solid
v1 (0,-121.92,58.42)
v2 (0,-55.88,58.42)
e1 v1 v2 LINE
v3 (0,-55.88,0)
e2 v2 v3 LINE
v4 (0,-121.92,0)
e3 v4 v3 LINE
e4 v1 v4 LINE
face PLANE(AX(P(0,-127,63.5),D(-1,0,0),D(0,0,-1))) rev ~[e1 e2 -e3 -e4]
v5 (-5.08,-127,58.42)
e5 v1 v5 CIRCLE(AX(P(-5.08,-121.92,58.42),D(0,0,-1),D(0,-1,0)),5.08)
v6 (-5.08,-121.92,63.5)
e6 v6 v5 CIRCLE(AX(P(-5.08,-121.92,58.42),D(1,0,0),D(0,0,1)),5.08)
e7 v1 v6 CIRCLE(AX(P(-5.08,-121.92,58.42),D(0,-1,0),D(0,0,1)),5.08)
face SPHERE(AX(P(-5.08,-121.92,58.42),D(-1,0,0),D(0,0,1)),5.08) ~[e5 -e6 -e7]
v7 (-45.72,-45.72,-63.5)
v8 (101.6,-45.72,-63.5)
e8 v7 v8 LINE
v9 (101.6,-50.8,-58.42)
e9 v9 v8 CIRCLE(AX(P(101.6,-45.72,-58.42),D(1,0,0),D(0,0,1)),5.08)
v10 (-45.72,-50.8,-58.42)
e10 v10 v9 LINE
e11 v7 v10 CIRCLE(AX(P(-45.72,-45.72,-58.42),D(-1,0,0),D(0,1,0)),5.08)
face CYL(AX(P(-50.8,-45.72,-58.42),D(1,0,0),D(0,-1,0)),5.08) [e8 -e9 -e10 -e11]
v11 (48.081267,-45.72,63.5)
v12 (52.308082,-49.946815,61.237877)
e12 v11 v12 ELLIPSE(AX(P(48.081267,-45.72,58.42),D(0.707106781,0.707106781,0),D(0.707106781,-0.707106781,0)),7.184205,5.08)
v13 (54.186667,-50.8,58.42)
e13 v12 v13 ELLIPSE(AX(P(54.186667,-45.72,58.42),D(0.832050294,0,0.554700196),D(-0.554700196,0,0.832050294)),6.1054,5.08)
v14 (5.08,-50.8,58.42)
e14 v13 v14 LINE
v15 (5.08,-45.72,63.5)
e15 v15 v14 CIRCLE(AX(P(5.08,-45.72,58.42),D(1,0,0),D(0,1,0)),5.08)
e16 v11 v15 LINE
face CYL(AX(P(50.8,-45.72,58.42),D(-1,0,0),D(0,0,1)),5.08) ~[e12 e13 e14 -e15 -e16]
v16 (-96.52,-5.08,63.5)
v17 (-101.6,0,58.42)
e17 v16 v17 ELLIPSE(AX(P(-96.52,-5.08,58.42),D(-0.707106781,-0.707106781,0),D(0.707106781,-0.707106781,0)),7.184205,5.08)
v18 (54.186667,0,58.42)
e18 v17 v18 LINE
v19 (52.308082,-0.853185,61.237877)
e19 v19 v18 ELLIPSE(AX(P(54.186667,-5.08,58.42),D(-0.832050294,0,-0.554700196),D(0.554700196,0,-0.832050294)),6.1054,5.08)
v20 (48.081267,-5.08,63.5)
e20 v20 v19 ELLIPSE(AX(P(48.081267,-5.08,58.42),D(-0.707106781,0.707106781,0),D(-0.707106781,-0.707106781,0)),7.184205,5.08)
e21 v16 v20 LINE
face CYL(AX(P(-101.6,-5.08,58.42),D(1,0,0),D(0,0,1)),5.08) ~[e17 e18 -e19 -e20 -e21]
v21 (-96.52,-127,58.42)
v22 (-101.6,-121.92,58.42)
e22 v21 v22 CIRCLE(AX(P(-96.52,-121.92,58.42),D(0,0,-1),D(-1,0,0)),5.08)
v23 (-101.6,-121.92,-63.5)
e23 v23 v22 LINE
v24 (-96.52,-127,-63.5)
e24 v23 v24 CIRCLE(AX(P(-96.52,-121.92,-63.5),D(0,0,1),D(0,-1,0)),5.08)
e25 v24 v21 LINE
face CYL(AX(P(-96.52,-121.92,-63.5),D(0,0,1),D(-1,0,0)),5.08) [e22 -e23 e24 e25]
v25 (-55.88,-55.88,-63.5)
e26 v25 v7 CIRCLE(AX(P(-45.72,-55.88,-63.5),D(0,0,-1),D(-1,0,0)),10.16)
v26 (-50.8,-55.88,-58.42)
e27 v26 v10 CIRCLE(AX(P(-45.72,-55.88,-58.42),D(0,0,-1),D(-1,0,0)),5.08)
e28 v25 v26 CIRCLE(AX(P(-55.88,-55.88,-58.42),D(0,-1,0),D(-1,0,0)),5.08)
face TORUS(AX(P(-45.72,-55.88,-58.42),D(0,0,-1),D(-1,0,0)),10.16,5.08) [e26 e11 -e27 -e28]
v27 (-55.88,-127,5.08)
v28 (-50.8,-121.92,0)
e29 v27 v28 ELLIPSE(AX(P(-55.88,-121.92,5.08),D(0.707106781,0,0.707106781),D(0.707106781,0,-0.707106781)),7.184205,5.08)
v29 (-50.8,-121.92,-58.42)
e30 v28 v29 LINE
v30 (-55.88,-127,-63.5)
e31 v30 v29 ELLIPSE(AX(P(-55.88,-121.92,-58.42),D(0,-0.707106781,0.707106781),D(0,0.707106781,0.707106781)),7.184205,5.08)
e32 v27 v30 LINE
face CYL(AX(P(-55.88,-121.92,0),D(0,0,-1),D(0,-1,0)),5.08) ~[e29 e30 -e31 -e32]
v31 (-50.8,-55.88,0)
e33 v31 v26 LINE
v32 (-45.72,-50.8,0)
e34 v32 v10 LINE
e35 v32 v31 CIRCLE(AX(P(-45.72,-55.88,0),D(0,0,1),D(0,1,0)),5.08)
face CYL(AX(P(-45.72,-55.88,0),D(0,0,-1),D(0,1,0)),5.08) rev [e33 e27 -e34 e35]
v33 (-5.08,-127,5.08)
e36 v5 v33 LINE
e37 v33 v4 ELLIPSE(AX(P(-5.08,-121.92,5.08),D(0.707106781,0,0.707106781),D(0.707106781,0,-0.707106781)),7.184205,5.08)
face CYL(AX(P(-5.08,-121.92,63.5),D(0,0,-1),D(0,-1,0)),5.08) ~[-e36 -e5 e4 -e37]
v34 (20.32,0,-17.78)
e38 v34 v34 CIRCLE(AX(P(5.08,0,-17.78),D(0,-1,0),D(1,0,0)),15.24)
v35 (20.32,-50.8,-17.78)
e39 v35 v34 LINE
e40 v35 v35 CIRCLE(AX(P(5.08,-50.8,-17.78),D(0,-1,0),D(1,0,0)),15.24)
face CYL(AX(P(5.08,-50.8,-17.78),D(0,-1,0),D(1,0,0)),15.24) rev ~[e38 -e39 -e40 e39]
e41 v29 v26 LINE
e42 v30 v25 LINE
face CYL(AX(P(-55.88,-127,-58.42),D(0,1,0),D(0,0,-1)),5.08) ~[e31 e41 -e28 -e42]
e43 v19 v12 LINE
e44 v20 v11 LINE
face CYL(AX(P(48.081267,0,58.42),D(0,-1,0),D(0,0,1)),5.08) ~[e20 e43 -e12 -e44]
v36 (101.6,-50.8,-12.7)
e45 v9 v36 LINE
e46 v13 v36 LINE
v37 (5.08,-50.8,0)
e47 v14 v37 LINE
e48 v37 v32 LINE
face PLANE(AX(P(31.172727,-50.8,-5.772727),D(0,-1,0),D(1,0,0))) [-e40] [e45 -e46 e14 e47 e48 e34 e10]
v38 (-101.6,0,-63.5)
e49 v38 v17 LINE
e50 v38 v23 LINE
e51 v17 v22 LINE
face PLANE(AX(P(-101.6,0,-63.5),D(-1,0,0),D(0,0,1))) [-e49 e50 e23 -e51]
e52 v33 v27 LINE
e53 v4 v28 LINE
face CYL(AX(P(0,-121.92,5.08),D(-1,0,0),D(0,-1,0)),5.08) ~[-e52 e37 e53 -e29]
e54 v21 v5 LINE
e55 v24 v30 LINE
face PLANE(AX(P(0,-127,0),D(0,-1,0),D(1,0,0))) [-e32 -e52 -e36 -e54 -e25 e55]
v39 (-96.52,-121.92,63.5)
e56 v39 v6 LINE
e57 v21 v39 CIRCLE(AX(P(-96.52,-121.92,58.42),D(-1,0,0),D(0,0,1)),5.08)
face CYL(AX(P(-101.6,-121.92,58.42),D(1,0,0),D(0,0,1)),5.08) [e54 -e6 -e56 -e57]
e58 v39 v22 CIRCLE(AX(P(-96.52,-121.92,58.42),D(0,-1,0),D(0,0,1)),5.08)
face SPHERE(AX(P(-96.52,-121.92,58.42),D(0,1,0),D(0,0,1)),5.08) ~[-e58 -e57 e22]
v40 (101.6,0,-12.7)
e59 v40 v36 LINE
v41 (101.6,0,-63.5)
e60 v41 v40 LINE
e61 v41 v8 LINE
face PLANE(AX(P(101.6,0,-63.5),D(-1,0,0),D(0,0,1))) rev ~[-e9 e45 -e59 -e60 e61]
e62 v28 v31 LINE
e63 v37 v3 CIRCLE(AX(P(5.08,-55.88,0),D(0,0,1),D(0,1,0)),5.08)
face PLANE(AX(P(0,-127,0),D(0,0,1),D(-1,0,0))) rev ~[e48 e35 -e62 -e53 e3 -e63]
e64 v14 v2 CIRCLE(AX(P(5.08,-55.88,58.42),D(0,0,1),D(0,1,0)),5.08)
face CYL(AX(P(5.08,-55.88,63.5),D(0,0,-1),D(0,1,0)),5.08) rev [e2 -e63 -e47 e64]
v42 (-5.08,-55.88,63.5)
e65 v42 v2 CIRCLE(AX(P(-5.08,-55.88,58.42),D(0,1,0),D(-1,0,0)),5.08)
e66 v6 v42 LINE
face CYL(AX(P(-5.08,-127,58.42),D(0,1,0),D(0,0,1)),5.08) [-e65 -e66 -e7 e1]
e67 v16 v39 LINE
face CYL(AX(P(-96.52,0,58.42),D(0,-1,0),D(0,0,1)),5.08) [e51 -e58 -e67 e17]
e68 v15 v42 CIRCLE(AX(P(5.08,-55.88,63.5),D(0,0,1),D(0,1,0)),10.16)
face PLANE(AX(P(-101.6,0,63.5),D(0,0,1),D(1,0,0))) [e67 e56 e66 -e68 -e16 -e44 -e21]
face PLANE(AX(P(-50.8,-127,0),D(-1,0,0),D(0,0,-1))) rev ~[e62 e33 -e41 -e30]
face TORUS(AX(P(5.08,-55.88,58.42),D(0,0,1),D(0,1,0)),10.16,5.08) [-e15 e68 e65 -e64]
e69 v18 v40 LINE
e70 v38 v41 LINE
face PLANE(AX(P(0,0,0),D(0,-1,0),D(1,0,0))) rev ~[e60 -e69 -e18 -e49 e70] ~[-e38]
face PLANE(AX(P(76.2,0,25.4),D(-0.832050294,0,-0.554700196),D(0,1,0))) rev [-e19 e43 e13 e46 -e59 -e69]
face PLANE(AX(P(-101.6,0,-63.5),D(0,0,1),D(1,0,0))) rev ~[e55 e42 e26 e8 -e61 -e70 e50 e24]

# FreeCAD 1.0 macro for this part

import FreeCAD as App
import Part
import Sketcher
Q = App.Units.Quantity


def edges_at(feature, points):
    """Names of the edges that pass closest to the given points."""
    edges = feature.Shape.Edges
    near = lambda p: min(range(len(edges)), key=lambda i: edges[i].distToShape(Part.Vertex(*p))[0])
    return sorted({f"Edge{near(p) + 1}" for p in points})

doc = App.newDocument("Part")
body = doc.addObject("PartDesign::Body", "Body")

# Sketch on XZ plane
sketch1 = doc.addObject("Sketcher::SketchObject", "Sketch")
body.addObject(sketch1)
sketch1.AttachmentSupport = (doc.XZ_Plane, [""])
sketch1.MapMode = "FlatFace"
sketch1.addGeometry([
    Part.LineSegment(App.Vector(-102, 64, 0), App.Vector(-102, -64, 0)),
    Part.LineSegment(App.Vector(-102, -64, 0), App.Vector(102, -64, 0)),
    Part.LineSegment(App.Vector(102, -64, 0), App.Vector(102, 64, 0)),
    Part.LineSegment(App.Vector(102, 64, 0), App.Vector(-102, 64, 0)),
], False)
sketch1.addConstraint([
    Sketcher.Constraint("Coincident", 0, 2, 1, 1),
    Sketcher.Constraint("Coincident", 1, 2, 2, 1),
    Sketcher.Constraint("Coincident", 2, 2, 3, 1),
    Sketcher.Constraint("Coincident", 3, 2, 0, 1),
    Sketcher.Constraint("Vertical", 0),
    Sketcher.Constraint("Horizontal", 1),
    Sketcher.Constraint("Vertical", 2),
    Sketcher.Constraint("Horizontal", 3),
    Sketcher.Constraint("Symmetric", 0, 2, 2, 2, -1, 1),
    Sketcher.Constraint("DistanceX", 1, 1, 1, 2, Q("8 in")),
    Sketcher.Constraint("DistanceY", 0, 2, 0, 1, Q("5 in")),
])
pad1 = doc.addObject("PartDesign::Pad", "Pad")
body.addObject(pad1)
pad1.Profile = sketch1
pad1.Length = Q("5 in")

# Sketch on XZ plane
sketch2 = doc.addObject("Sketcher::SketchObject", "Sketch001")
body.addObject(sketch2)
sketch2.AttachmentSupport = (doc.XZ_Plane, [""])
sketch2.MapMode = "FlatFace"
sketch2.AttachmentOffset = App.Placement(App.Vector(0, 0, 5 * 25.4), App.Rotation())
sketch2.addGeometry([
    Part.LineSegment(App.Vector(102, 64, 0), App.Vector(0, 64, 0)),  # 0
    Part.LineSegment(App.Vector(0, 64, 0), App.Vector(0, 0, 0)),  # 1
    Part.LineSegment(App.Vector(0, 0, 0), App.Vector(-51, 0, 0)),  # 2
    Part.LineSegment(App.Vector(-51, 0, 0), App.Vector(-51, -64, 0)),  # 3
    Part.LineSegment(App.Vector(-51, -64, 0), App.Vector(102, -64, 0)),  # 4
    Part.LineSegment(App.Vector(102, -64, 0), App.Vector(102, 64, 0)),  # 5
], False)
sketch2.addConstraint([
    Sketcher.Constraint("Coincident", 0, 2, 1, 1),
    Sketcher.Constraint("Coincident", 1, 2, 2, 1),
    Sketcher.Constraint("Coincident", 2, 2, 3, 1),
    Sketcher.Constraint("Coincident", 3, 2, 4, 1),
    Sketcher.Constraint("Coincident", 4, 2, 5, 1),
    Sketcher.Constraint("Coincident", 5, 2, 0, 1),
    Sketcher.Constraint("Horizontal", 0),
    Sketcher.Constraint("Vertical", 1),
    Sketcher.Constraint("Horizontal", 2),
    Sketcher.Constraint("Vertical", 3),
    Sketcher.Constraint("Horizontal", 4),
    Sketcher.Constraint("Vertical", 5),
    Sketcher.Constraint("Coincident", 1, 2, -1, 1),
    Sketcher.Constraint("Equal", 1, 3),
    Sketcher.Constraint("DistanceX", 0, 2, 0, 1, Q("4 in")),
    Sketcher.Constraint("DistanceX", 2, 2, 2, 1, Q("2 in")),
    Sketcher.Constraint("DistanceY", 5, 1, 5, 2, Q("5 in")),
])
pocket1 = doc.addObject("PartDesign::Pocket", "Pocket")
body.addObject(pocket1)
pocket1.Profile = sketch2
pocket1.Length = Q("3 in")
doc.recompute()

chamfer = doc.addObject("PartDesign::Chamfer", "Chamfer")
body.addObject(chamfer)
chamfer.Base = (pocket1, edges_at(pocket1, [(101.6, -25.4, 63.5)]))
chamfer.ChamferType = "Two distances"
chamfer.Size = Q("2 in")
chamfer.Size2 = Q("3 in")
doc.recompute()

fillet = doc.addObject("PartDesign::Fillet", "Fillet")
body.addObject(fillet)
fillet.Base = (chamfer, edges_at(chamfer, [
    (25.4, -50.8, 63.5),
    (-25.4, 0, 63.5),
    (50.8, -25.4, 63.5),
    (-101.6, -63.5, 63.5),
    (-50.8, -127, 63.5),
    (0, -88.9, 63.5),
    (0, -127, 31.75),
    (0, -50.8, 31.75),
    (-50.8, -88.9, -63.5),
    (25.4, -50.8, -63.5),
    (-50.8, -50.8, -31.75),
    (-50.8, -127, -31.75),
    (-25.4, -127, 0),
    (-101.6, -127, 0),
]))
fillet.Radius = Q("0.2 in")

# Sketch on XZ plane
sketch3 = doc.addObject("Sketcher::SketchObject", "Sketch002")
body.addObject(sketch3)
sketch3.AttachmentSupport = (doc.XZ_Plane, [""])
sketch3.MapMode = "FlatFace"
sketch3.AttachmentOffset = App.Placement(App.Vector(0, 0, 2 * 25.4), App.Rotation())
sketch3.addGeometry(Part.Circle(App.Vector(5, -18, 0), App.Vector(0, 0, 1), 15), False)
sketch3.addConstraint([
    Sketcher.Constraint("Diameter", 0, Q("1.2 in")),
    Sketcher.Constraint("DistanceX", -1, 1, 0, 3, Q("0.2 in")),
    Sketcher.Constraint("DistanceY", 0, 3, -1, 1, Q("0.7 in")),
])
pocket2 = doc.addObject("PartDesign::Pocket", "Pocket001")
body.addObject(pocket2)
pocket2.Profile = sketch3
pocket2.Type = "ThroughAll"

doc.recompute()
